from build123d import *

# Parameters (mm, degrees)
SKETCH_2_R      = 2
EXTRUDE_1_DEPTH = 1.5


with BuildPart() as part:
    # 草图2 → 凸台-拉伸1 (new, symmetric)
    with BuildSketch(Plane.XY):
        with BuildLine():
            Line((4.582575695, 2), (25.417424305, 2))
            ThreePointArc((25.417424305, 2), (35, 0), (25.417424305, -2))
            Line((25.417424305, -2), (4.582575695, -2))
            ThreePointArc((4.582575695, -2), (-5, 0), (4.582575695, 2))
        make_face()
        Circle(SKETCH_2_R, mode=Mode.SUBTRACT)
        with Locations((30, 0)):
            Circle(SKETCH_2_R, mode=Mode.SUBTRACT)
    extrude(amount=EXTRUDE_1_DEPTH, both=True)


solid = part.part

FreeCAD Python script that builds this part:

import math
import FreeCAD as App
import Part
import Sketcher
from FreeCAD import Vector

doc = App.newDocument("Part")
body = doc.addObject("PartDesign::Body", "Body")

sketch1 = body.newObject("Sketcher::SketchObject", "Sketch")
sketch1.AttachmentSupport = (doc.getObject("XY_Plane"), [""])
sketch1.MapMode = "FlatFace"
sketch1.addGeometry(Part.LineSegment(Vector(25.4, 2, 0), Vector(4.6, 2, 0)), False)
sketch1.addGeometry(Part.ArcOfCircle(Part.Circle(Vector(0, 0, 0), Vector(0, 0, 1), 5), math.radians(24), math.radians(336)), False)
sketch1.addGeometry(Part.LineSegment(Vector(4.6, -2, 0), Vector(25.4, -2, 0)), False)
sketch1.addGeometry(Part.ArcOfCircle(Part.Circle(Vector(30, 0, 0), Vector(0, 0, 1), 5), math.radians(-156), math.radians(156)), False)
sketch1.addGeometry(Part.Circle(Vector(30, 0, 0), Vector(0, 0, 1), 2), False)
sketch1.addGeometry(Part.Circle(Vector(0, 0, 0), Vector(0, 0, 1), 2), False)
sketch1.addConstraint(Sketcher.Constraint("Coincident", 0, 2, 1, 1))
sketch1.addConstraint(Sketcher.Constraint("Coincident", 1, 2, 2, 1))
sketch1.addConstraint(Sketcher.Constraint("Coincident", 2, 2, 3, 1))
sketch1.addConstraint(Sketcher.Constraint("Coincident", 3, 2, 0, 1))
sketch1.addConstraint(Sketcher.Constraint("Horizontal", 0))
sketch1.addConstraint(Sketcher.Constraint("Horizontal", 2))
sketch1.addConstraint(Sketcher.Constraint("Coincident", 1, 3, -1, 1))
sketch1.addConstraint(Sketcher.Constraint("Coincident", 5, 3, -1, 1))
sketch1.addConstraint(Sketcher.Constraint("Coincident", 4, 3, 3, 3))
sketch1.addConstraint(Sketcher.Constraint("Equal", 1, 3))
sketch1.addConstraint(Sketcher.Constraint("Equal", 4, 5))
sketch1.addConstraint(Sketcher.Constraint("Symmetric", 2, 2, 3, 2, -1))
sketch1.addConstraint(Sketcher.Constraint("Diameter", 4, 4.0))
sketch1.addConstraint(Sketcher.Constraint("Radius", 1, 5.0))
sketch1.addConstraint(Sketcher.Constraint("DistanceX", -1, 1, 3, 3, 30.0))
sketch1.addConstraint(Sketcher.Constraint("DistanceY", -1, 1, 0, 2, 2.0))
pad1 = body.newObject("PartDesign::Pad", "Pad")
pad1.Profile = sketch1
pad1.Length = 3
pad1.Midplane = True

doc.recompute()
